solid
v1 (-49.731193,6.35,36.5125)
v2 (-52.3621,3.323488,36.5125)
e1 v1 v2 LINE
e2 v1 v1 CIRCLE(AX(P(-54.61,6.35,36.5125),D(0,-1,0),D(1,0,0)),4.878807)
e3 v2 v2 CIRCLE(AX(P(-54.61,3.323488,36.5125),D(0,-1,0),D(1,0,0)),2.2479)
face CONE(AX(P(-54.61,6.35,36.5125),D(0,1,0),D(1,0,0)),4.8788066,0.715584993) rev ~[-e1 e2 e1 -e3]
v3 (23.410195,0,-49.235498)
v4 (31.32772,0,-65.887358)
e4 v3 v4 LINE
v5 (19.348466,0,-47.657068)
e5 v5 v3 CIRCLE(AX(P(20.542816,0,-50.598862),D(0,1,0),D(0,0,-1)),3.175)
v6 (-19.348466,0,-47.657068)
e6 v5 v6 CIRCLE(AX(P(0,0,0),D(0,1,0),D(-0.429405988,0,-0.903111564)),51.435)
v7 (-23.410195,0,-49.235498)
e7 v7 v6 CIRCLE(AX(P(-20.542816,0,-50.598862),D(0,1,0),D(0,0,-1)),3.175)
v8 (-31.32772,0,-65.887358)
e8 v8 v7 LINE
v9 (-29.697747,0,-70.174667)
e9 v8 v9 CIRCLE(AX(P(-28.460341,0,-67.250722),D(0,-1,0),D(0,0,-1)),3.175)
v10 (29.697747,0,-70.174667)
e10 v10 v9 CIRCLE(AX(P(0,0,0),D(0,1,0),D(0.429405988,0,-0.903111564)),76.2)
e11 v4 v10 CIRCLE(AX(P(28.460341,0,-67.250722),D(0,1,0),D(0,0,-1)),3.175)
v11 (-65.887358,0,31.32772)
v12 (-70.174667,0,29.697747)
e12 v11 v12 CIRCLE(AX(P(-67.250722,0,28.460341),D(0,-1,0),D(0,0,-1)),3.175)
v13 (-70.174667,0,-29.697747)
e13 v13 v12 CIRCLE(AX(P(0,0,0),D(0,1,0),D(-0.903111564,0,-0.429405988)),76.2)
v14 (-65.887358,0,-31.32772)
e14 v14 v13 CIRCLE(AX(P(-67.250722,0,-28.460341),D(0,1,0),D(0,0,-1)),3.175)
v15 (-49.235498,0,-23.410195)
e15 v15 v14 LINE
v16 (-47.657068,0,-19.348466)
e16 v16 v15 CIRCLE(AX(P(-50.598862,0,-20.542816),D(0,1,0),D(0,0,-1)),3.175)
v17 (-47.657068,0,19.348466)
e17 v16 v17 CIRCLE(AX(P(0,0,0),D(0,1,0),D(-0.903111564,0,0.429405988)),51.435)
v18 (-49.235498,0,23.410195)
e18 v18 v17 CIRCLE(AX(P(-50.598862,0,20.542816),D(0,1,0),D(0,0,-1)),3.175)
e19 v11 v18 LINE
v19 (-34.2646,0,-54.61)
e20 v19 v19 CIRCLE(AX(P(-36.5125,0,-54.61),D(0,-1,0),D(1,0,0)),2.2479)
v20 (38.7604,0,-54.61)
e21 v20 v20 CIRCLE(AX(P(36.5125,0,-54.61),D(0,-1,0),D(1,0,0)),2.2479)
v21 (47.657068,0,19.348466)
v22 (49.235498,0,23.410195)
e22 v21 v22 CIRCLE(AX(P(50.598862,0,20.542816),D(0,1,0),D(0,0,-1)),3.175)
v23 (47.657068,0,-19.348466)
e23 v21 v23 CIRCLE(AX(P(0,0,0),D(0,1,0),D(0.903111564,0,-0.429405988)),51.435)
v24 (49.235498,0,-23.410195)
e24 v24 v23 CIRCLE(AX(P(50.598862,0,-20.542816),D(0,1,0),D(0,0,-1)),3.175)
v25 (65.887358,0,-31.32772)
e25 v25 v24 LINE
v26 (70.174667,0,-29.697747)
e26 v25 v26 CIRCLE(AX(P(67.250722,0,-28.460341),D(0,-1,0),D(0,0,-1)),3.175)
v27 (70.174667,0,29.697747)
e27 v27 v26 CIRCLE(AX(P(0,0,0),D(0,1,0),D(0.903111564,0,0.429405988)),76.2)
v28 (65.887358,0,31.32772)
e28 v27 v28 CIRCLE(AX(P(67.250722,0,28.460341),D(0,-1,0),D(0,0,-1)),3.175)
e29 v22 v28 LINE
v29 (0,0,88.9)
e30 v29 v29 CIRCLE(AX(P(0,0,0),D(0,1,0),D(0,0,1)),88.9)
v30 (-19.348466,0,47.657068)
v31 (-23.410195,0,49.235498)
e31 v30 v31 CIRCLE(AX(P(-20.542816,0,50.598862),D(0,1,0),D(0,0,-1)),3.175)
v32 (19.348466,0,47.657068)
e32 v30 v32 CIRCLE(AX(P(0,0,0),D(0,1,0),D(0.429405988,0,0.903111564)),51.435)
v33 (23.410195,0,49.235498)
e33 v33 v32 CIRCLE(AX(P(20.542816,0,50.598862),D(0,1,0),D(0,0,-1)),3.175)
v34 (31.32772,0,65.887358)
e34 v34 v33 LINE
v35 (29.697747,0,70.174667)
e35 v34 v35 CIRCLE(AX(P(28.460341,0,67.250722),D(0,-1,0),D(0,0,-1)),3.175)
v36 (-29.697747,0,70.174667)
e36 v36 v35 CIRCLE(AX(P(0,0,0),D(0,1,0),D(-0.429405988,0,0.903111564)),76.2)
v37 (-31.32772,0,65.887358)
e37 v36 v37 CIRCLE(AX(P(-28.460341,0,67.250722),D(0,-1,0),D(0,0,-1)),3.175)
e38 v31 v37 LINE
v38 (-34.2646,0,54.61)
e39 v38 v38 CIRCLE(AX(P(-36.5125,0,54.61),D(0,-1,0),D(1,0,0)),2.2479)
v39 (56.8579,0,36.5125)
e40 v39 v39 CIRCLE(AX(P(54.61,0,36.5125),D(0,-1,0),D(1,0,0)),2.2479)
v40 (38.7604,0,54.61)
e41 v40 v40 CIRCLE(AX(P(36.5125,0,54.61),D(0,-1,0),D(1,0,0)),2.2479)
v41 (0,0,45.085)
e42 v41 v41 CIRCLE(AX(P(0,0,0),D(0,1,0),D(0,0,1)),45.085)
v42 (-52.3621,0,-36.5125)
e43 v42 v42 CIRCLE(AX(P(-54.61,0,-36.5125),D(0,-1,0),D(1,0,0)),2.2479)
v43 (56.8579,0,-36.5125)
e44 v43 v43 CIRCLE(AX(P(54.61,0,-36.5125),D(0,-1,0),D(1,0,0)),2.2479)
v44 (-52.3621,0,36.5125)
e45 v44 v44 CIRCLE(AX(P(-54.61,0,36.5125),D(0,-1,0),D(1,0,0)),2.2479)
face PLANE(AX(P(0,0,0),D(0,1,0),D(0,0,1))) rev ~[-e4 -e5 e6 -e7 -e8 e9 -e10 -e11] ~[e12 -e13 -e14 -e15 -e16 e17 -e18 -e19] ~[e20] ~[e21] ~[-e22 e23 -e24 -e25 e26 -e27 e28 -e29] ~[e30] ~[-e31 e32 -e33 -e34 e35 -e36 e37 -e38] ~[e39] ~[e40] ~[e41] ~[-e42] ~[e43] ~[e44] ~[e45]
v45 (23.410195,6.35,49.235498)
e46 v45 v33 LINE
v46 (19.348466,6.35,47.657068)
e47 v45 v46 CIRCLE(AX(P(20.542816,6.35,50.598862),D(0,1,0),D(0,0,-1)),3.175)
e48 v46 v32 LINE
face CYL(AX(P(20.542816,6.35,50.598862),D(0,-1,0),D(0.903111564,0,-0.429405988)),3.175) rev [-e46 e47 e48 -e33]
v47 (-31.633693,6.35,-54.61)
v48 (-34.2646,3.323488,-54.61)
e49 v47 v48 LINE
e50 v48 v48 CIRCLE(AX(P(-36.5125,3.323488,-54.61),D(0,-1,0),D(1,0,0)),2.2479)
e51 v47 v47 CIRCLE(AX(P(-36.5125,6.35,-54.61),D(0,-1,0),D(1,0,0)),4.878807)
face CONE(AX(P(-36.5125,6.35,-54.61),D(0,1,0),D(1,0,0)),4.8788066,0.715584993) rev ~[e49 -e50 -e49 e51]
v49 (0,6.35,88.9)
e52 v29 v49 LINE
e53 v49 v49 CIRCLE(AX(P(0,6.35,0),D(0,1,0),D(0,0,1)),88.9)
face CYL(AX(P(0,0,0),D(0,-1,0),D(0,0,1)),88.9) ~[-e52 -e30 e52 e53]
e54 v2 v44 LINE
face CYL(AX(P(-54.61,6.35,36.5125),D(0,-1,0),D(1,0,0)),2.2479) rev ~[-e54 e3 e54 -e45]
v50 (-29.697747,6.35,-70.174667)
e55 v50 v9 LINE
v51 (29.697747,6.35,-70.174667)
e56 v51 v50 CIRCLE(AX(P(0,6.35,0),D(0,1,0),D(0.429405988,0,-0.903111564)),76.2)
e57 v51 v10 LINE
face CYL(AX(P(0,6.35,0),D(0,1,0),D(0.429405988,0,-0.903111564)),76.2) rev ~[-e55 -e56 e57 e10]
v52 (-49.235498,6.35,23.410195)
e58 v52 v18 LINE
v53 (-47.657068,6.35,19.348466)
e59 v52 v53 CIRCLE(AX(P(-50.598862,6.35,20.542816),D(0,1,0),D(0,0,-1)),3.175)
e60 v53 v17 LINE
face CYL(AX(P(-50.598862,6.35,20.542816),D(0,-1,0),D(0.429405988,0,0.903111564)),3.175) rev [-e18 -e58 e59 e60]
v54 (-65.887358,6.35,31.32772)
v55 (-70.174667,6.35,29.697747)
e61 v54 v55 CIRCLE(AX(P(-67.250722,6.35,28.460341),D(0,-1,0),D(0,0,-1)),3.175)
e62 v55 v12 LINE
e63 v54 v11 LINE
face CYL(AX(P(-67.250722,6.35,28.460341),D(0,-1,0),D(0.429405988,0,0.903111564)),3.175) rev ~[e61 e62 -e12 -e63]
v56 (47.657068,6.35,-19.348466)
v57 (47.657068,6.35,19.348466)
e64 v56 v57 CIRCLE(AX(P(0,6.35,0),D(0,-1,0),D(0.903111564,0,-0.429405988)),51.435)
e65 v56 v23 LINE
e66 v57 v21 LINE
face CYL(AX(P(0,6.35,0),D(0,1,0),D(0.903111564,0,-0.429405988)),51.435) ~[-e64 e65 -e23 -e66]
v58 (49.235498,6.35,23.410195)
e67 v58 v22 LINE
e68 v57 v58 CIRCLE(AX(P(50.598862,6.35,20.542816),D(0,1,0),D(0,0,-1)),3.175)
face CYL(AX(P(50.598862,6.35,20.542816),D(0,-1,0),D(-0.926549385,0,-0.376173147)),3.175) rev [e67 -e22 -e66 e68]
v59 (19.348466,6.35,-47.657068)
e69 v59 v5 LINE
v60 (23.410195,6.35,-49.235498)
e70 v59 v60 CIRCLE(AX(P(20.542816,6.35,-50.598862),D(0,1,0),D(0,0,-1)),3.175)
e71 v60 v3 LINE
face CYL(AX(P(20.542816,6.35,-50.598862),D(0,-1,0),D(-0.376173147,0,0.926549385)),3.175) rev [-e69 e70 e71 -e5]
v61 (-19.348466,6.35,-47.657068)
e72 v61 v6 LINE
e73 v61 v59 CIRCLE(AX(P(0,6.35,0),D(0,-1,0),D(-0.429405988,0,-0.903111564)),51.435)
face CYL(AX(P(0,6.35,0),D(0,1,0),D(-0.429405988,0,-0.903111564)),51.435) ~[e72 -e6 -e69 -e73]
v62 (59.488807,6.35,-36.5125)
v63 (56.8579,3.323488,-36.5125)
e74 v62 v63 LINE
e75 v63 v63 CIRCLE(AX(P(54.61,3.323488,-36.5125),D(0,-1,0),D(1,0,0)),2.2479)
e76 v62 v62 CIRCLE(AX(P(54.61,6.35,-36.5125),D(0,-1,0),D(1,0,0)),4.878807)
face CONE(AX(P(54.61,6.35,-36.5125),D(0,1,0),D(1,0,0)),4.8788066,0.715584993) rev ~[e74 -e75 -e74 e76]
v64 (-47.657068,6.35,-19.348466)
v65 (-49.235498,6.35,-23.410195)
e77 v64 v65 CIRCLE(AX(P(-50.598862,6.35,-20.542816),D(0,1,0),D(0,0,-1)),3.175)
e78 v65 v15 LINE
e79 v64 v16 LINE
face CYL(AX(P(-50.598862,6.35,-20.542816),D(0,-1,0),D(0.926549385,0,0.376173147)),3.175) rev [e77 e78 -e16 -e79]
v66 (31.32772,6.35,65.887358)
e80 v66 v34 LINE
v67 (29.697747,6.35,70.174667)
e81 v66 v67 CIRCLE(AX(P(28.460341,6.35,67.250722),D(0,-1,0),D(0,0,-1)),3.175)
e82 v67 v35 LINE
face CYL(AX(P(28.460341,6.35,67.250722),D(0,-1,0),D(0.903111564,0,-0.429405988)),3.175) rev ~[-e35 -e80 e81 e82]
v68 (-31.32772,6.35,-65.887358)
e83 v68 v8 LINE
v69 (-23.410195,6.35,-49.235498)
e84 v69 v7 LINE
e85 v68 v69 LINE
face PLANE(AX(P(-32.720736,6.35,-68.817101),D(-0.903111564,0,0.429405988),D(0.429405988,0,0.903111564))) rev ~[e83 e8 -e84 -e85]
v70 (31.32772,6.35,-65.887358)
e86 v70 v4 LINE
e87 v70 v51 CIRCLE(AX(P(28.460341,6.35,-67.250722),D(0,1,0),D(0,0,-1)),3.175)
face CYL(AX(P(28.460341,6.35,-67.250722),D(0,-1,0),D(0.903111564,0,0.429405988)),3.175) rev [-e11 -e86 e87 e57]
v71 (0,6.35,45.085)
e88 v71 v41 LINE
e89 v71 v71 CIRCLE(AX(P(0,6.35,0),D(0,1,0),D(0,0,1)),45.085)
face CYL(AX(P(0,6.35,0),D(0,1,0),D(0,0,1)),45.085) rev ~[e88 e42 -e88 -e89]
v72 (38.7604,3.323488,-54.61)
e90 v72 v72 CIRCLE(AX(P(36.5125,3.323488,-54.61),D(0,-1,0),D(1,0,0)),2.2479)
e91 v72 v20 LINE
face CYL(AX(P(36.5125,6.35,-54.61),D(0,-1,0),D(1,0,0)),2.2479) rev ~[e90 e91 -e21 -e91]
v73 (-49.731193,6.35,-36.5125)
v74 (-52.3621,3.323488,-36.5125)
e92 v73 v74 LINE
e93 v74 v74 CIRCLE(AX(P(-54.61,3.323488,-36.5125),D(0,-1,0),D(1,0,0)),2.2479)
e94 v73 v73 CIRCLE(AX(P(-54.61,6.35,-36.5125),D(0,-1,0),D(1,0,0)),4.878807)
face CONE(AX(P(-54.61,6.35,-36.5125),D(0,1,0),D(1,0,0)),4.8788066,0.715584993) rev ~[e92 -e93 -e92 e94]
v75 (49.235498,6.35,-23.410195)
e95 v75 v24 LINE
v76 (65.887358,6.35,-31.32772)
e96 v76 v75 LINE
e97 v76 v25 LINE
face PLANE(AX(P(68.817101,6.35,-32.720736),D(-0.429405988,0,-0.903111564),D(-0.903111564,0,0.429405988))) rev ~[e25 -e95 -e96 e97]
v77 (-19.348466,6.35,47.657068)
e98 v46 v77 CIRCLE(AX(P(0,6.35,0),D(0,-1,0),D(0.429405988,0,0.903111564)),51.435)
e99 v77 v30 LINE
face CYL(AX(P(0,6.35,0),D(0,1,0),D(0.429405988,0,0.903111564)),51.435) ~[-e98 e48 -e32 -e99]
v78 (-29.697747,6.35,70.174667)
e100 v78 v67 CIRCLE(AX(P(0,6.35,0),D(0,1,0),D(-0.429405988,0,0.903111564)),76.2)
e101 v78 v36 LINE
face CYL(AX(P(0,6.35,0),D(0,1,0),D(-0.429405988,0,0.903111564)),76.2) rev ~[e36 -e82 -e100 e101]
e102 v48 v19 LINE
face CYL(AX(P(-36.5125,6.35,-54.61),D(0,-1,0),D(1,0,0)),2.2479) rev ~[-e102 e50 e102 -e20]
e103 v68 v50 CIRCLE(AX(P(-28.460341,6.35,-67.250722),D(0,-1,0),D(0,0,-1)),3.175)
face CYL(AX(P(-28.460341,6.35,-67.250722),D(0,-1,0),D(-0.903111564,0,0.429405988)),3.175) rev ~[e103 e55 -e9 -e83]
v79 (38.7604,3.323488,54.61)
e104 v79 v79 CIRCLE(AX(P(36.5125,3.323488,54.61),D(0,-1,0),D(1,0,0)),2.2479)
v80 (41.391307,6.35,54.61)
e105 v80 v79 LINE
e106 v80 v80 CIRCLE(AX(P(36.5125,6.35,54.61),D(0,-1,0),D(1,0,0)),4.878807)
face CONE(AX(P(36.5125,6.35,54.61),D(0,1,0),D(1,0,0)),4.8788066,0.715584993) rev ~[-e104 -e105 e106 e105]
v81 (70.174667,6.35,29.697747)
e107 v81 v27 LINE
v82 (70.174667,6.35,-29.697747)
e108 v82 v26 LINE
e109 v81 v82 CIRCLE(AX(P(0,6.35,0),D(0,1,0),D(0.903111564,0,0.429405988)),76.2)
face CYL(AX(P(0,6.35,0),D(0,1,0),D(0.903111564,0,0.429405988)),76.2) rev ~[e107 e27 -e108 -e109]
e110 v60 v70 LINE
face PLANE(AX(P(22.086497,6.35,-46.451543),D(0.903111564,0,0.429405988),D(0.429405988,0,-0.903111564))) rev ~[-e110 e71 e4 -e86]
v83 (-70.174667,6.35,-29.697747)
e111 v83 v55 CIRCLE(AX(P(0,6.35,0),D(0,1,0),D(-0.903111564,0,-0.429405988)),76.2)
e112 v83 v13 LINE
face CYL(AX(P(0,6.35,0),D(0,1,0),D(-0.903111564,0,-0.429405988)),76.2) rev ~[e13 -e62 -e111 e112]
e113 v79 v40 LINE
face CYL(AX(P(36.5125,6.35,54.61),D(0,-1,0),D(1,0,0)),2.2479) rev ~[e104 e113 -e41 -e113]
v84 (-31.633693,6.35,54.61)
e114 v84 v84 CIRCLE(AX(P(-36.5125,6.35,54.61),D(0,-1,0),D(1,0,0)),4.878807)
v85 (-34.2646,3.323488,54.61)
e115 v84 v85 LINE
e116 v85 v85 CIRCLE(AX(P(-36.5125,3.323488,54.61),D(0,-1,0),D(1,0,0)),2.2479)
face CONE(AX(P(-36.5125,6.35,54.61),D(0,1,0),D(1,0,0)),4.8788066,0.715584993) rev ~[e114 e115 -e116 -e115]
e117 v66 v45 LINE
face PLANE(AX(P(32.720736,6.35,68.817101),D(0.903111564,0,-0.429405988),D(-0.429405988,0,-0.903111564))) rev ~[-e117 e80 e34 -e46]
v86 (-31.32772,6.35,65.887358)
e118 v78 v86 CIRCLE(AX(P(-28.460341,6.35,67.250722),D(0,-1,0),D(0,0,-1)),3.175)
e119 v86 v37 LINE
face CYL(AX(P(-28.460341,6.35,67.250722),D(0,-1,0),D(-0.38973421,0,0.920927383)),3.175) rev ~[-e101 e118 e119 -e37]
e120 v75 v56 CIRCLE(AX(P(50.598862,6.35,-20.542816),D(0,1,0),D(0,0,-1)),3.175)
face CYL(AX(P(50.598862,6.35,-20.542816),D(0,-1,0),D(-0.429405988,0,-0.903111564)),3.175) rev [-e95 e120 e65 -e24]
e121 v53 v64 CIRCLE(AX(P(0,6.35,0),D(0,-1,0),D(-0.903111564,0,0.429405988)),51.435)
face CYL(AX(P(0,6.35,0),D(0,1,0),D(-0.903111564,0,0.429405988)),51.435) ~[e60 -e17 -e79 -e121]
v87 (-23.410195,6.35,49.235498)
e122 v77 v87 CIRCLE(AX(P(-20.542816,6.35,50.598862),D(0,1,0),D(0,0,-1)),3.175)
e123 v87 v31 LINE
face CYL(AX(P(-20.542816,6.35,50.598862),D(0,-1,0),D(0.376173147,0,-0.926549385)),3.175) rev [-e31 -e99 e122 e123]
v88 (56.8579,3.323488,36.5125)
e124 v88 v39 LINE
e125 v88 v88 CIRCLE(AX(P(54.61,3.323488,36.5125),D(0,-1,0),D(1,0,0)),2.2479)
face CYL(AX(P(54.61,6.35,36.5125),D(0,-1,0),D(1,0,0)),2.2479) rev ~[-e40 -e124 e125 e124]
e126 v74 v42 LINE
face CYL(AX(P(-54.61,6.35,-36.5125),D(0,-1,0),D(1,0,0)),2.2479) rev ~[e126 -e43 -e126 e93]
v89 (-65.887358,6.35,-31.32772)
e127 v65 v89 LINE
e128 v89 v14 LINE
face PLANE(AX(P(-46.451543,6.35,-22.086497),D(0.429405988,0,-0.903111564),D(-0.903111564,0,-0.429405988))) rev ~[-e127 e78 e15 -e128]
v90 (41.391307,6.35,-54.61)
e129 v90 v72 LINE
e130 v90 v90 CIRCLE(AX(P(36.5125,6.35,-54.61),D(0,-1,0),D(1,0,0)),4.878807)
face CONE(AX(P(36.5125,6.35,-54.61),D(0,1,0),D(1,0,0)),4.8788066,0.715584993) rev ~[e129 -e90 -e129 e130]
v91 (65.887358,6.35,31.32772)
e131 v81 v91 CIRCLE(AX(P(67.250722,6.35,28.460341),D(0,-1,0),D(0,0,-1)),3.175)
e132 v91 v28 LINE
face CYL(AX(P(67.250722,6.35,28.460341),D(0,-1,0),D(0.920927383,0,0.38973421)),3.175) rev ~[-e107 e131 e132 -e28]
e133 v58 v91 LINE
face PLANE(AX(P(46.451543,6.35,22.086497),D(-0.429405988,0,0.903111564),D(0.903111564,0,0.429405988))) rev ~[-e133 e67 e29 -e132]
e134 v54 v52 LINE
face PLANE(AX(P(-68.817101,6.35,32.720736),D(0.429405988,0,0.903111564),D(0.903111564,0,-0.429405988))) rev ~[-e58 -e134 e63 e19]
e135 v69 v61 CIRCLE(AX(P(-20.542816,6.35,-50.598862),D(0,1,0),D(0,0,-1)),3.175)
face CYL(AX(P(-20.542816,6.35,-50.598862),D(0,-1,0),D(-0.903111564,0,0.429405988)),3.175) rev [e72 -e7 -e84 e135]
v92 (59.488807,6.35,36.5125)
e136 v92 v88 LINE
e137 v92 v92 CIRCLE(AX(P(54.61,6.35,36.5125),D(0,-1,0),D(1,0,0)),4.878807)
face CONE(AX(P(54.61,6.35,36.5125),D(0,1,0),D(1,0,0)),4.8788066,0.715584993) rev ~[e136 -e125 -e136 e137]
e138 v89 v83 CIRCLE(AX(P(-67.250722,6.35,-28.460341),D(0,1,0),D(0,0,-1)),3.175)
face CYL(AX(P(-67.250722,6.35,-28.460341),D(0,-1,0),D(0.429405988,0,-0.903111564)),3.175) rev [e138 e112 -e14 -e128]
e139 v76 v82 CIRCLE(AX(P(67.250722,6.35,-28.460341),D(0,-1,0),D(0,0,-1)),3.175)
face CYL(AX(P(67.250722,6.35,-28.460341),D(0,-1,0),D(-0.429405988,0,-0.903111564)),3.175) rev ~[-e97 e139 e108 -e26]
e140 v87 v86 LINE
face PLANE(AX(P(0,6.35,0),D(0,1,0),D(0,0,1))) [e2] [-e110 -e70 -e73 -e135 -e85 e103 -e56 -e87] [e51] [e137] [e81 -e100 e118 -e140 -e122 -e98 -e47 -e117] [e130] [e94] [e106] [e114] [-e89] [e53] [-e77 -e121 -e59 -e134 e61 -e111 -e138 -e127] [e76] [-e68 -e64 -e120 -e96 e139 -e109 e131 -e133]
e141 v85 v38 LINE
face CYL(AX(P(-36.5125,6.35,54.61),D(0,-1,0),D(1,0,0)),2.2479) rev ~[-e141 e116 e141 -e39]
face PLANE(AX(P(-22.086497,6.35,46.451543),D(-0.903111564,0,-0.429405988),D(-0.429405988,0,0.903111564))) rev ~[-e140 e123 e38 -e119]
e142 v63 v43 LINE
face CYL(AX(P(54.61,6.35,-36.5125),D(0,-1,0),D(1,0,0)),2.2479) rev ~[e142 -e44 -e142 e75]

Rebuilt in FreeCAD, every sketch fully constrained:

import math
import FreeCAD as App
import Part
import Sketcher
from FreeCAD import Vector
Q = App.Units.Quantity


def edges_at(feature, points):
    """Names of the edges that pass closest to the given points."""
    edges = feature.Shape.Edges
    near = lambda p: min(range(len(edges)), key=lambda i: edges[i].distToShape(Part.Vertex(*p))[0])
    return sorted({f"Edge{near(p) + 1}" for p in points})

doc = App.newDocument("Part")
body = doc.addObject("PartDesign::Body", "Body")

# Sketch on XZ plane
sketch1 = body.newObject("Sketcher::SketchObject", "Sketch")
sketch1.AttachmentSupport = (doc.getObject("XZ_Plane"), [""])
sketch1.MapMode = "FlatFace"
sketch1.addGeometry(Part.Circle(Vector(0, 0, 0), Vector(0, 0, 1), 88.9), False)
sketch1.addConstraint(Sketcher.Constraint("Coincident", 0, 3, -1, 1))
sketch1.addConstraint(Sketcher.Constraint("Diameter", 0, Q("7 in")))
pad1 = body.newObject("PartDesign::Pad", "Pad")
pad1.Profile = sketch1
pad1.Length = Q("0.25 in")
pad1.Reversed = True

# Sketch on XZ plane
sketch2 = body.newObject("Sketcher::SketchObject", "Sketch001")
sketch2.AttachmentSupport = (doc.getObject("XZ_Plane"), [""])
sketch2.MapMode = "FlatFace"
sketch2.AttachmentOffset = App.Placement(Vector(0, 0, -0.25 * 25.4), App.Rotation())
sketch2.addGeometry(Part.Circle(Vector(-36.5125, -54.61, 0), Vector(0, 0, 1), 2.2479), False)
sketch2.addGeometry(Part.Circle(Vector(36.5125, -54.61, 0), Vector(0, 0, 1), 2.2479), False)
sketch2.addGeometry(Part.Circle(Vector(-36.5125, 54.61, 0), Vector(0, 0, 1), 2.2479), False)
sketch2.addGeometry(Part.Circle(Vector(36.5125, 54.61, 0), Vector(0, 0, 1), 2.2479), False)
sketch2.addGeometry(Part.Circle(Vector(54.61, -36.5125, 0), Vector(0, 0, 1), 2.2479), False)
sketch2.addGeometry(Part.Circle(Vector(54.61, 36.5125, 0), Vector(0, 0, 1), 2.2479), False)
sketch2.addGeometry(Part.Circle(Vector(-54.61, 36.5125, 0), Vector(0, 0, 1), 2.2479), False)
sketch2.addGeometry(Part.Circle(Vector(-54.61, -36.5125, 0), Vector(0, 0, 1), 2.2479), False)
sketch2.addConstraint(Sketcher.Constraint("Equal", 0, 1))
sketch2.addConstraint(Sketcher.Constraint("Equal", 1, 2))
sketch2.addConstraint(Sketcher.Constraint("Equal", 2, 3))
sketch2.addConstraint(Sketcher.Constraint("Equal", 3, 4))
sketch2.addConstraint(Sketcher.Constraint("Equal", 4, 5))
sketch2.addConstraint(Sketcher.Constraint("Equal", 5, 6))
sketch2.addConstraint(Sketcher.Constraint("Equal", 6, 7))
sketch2.addConstraint(Sketcher.Constraint("Symmetric", 1, 3, 2, 3, -1, 1))
sketch2.addConstraint(Sketcher.Constraint("Symmetric", 0, 3, 3, 3, -1, 1))
sketch2.addConstraint(Sketcher.Constraint("Symmetric", 4, 3, 6, 3, -1, 1))
sketch2.addConstraint(Sketcher.Constraint("Symmetric", 5, 3, 7, 3, -1, 1))
sketch2.addConstraint(Sketcher.Constraint("Symmetric", 0, 3, 1, 3, -2))
sketch2.addConstraint(Sketcher.Constraint("Symmetric", 5, 3, 6, 3, -2))
sketch2.addConstraint(Sketcher.Constraint("Diameter", 0, Q("0.177 in")))
sketch2.addConstraint(Sketcher.Constraint("DistanceY", 0, 3, 2, 3, Q("4.3 in")))
sketch2.addConstraint(Sketcher.Constraint("DistanceX", 6, 3, 5, 3, Q("4.3 in")))
sketch2.addConstraint(Sketcher.Constraint("DistanceX", 0, 3, -1, 1, Q("1.4375 in")))
sketch2.addConstraint(Sketcher.Constraint("DistanceY", 4, 3, -1, 1, Q("1.4375 in")))
doc.recompute()
hole = body.newObject("PartDesign::Hole", "Hole")
hole.Profile = sketch2
hole.ThreadType = "None"
hole.Diameter = Q("0.177 in")
hole.DepthType = "ThroughAll"
hole.HoleCutType = "Countersink"
hole.HoleCutDiameter = 9.757613
hole.HoleCutCountersinkAngle = 82
hole.Reversed = True
doc.recompute()

polarpattern = body.newObject("PartDesign::PolarPattern", "PolarPattern")
polarpattern.Originals = [hole]
polarpattern.Axis = (doc.getObject("Y_Axis"), [""])
polarpattern.Angle = 360
polarpattern.Occurrences = 2
body.Tip = polarpattern

# Sketch on XZ plane
sketch3 = body.newObject("Sketcher::SketchObject", "Sketch002")
sketch3.AttachmentSupport = (doc.getObject("XZ_Plane"), [""])
sketch3.MapMode = "FlatFace"
sketch3.AttachmentOffset = App.Placement(Vector(0, 0, -0.25 * 25.4), App.Rotation())
sketch3.addGeometry(Part.Circle(Vector(0, 0, 0), Vector(0, 0, 1), 45.085), False)
sketch3.addConstraint(Sketcher.Constraint("Coincident", 0, 3, -1, 1))
sketch3.addConstraint(Sketcher.Constraint("Diameter", 0, Q("3.55 in")))
pocket1 = body.newObject("PartDesign::Pocket", "Pocket")
pocket1.Profile = sketch3
pocket1.Type = "ThroughAll"
pocket1.Reversed = True

# Sketch on XZ plane
sketch4 = body.newObject("Sketcher::SketchObject", "Sketch003")
sketch4.AttachmentSupport = (doc.getObject("XZ_Plane"), [""])
sketch4.MapMode = "FlatFace"
sketch4.AttachmentOffset = App.Placement(Vector(0, 0, -0.25 * 25.4), App.Rotation())
sketch4.addGeometry(Part.LineSegment(Vector(-68.817101, 32.720736, 0), Vector(-46.451543, 22.086497, 0)), False)
sketch4.addGeometry(Part.ArcOfCircle(Part.Circle(Vector(0, 0, 0), Vector(0, 0, 1), 51.435), math.radians(154.570131), math.radians(205.429869)), False)
sketch4.addGeometry(Part.LineSegment(Vector(-46.451543, -22.086497, 0), Vector(-68.817101, -32.720736, 0)), False)
sketch4.addGeometry(Part.ArcOfCircle(Part.Circle(Vector(0, 0, 0), Vector(0, 0, 1), 76.2), math.radians(154.570131), math.radians(205.429869)), False)
sketch4.addConstraint(Sketcher.Constraint("Coincident", 0, 2, 1, 1))
sketch4.addConstraint(Sketcher.Constraint("Coincident", 1, 2, 2, 1))
sketch4.addConstraint(Sketcher.Constraint("Coincident", 2, 2, 3, 2))
sketch4.addConstraint(Sketcher.Constraint("Coincident", 3, 1, 0, 1))
sketch4.addConstraint(Sketcher.Constraint("Coincident", 1, 3, -1, 1))
sketch4.addConstraint(Sketcher.Constraint("Coincident", 3, 3, -1, 1))
sketch4.addConstraint(Sketcher.Constraint("Vertical", 0, 2, 1, 2))
sketch4.addConstraint(Sketcher.Constraint("Vertical", 2, 2, 3, 1))
sketch4.addConstraint(Sketcher.Constraint("Radius", 3, Q("3 in")))
sketch4.addConstraint(Sketcher.Constraint("Radius", 1, Q("2.025 in")))
sketch4.addConstraint(Sketcher.Constraint("DistanceX", 2, 2, -1, 1, Q("68.817101 mm")))
sketch4.addConstraint(Sketcher.Constraint("DistanceY", 2, 2, 1, 2, Q("10.634239 mm")))
pocket2 = body.newObject("PartDesign::Pocket", "Pocket001")
pocket2.Profile = sketch4
pocket2.Type = "ThroughAll"
pocket2.Reversed = True
doc.recompute()

fillet = body.newObject("PartDesign::Fillet", "Fillet")
fillet.Base = (pocket2, edges_at(pocket2, [
    (-68.817, 3.175, 32.721),
    (-68.817, 3.175, -32.721),
    (-46.452, 3.175, -22.086),
    (-46.452, 3.175, 22.086),
]))
fillet.Radius = Q("0.125 in")
doc.recompute()

polarpattern2 = body.newObject("PartDesign::PolarPattern", "PolarPattern001")
polarpattern2.Originals = [pocket2]
polarpattern2.Axis = (doc.getObject("Y_Axis"), [""])
polarpattern2.Angle = 360
polarpattern2.Occurrences = 4
body.Tip = polarpattern2
doc.recompute()

fillet2 = body.newObject("PartDesign::Fillet", "Fillet001")
fillet2.Base = (polarpattern2, edges_at(polarpattern2, [
    (32.721, 3.175, 68.817),
    (-32.721, 3.175, 68.817),
    (-22.086, 3.175, 46.452),
    (22.086, 3.175, 46.452),
    (68.817, 3.175, -32.721),
    (68.817, 3.175, 32.721),
    (46.452, 3.175, 22.086),
    (46.452, 3.175, -22.086),
    (-32.721, 3.175, -68.817),
    (32.721, 3.175, -68.817),
    (22.086, 3.175, -46.452),
    (-22.086, 3.175, -46.452),
]))
fillet2.Radius = Q("0.125 in")

doc.recompute()
